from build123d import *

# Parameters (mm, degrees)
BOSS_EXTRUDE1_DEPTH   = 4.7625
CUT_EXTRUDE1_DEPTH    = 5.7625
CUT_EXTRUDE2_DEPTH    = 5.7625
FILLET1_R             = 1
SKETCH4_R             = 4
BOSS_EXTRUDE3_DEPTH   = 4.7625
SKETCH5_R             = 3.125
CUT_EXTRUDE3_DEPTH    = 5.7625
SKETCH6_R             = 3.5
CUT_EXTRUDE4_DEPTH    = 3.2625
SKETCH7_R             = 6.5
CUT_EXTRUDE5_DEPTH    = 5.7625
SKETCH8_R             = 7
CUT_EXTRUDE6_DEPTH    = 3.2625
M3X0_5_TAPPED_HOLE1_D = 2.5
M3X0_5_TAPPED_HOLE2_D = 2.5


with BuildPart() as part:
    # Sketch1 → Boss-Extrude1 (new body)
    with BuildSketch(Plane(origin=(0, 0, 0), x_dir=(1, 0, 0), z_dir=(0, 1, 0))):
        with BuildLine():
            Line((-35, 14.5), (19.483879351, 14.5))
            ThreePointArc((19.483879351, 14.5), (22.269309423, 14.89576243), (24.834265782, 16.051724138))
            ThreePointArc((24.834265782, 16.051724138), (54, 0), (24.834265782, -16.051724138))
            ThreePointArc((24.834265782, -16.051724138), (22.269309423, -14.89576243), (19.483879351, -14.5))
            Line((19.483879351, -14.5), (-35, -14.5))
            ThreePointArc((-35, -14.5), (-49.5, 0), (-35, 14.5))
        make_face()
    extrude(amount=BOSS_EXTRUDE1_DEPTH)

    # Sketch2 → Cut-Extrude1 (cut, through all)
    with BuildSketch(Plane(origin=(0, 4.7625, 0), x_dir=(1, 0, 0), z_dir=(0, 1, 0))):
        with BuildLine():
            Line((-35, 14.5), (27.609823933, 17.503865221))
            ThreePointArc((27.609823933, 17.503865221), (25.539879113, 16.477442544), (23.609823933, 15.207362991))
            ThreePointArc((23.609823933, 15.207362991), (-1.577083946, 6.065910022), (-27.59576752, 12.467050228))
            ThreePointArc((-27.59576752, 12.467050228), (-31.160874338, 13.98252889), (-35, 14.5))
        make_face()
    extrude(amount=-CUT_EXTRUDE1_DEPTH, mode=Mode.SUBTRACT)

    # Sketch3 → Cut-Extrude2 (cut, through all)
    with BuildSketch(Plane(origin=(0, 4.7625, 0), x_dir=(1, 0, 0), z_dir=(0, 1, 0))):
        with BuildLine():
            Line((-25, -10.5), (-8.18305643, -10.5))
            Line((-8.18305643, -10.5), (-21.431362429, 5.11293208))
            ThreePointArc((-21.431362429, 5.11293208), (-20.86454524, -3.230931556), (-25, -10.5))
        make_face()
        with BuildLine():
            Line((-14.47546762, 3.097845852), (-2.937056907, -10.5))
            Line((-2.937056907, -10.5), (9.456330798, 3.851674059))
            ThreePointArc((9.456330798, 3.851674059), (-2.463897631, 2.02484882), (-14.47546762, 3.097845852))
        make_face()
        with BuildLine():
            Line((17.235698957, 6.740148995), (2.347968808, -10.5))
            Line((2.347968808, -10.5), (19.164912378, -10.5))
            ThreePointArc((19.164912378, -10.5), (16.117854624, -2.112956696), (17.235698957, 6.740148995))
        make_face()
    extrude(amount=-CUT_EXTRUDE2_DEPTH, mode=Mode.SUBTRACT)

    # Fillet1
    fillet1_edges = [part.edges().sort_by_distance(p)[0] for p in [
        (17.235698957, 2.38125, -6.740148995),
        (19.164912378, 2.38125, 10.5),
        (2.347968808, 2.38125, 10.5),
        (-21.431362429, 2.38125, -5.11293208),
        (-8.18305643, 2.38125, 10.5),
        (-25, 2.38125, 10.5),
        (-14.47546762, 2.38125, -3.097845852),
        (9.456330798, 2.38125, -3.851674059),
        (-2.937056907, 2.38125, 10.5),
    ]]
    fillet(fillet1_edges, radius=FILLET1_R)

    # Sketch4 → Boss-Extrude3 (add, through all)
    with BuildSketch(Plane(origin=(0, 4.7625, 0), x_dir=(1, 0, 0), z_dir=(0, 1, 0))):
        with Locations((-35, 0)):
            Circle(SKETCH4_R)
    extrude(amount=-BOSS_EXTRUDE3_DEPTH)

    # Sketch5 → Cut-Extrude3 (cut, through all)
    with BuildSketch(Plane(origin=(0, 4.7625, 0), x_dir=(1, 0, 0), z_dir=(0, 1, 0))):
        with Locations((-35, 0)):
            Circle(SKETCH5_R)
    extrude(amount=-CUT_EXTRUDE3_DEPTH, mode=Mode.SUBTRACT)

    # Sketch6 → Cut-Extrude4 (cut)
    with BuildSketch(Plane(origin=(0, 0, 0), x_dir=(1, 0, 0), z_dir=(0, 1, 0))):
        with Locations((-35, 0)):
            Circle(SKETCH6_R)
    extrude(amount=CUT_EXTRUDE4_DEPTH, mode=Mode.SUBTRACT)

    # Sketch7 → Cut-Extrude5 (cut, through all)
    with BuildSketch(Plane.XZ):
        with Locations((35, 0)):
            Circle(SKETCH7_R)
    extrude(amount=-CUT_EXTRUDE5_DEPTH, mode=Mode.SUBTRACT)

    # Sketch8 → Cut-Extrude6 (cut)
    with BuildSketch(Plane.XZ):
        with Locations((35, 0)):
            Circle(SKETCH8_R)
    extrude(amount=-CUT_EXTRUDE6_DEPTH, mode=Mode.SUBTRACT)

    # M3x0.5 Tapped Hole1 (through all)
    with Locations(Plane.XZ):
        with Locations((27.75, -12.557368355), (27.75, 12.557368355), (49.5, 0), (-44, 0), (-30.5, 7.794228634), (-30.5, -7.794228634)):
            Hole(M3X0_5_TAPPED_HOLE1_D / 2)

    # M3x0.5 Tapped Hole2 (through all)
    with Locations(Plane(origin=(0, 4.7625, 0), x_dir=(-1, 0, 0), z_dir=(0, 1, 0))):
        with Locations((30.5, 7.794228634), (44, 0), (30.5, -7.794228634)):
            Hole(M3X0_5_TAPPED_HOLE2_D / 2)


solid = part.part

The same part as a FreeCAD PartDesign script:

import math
import FreeCAD as App
import Part
import Sketcher
from FreeCAD import Vector
Q = App.Units.Quantity


def edges_at(feature, points):
    """Names of the edges that pass closest to the given points."""
    edges = feature.Shape.Edges
    near = lambda p: min(range(len(edges)), key=lambda i: edges[i].distToShape(Part.Vertex(*p))[0])
    return sorted({f"Edge{near(p) + 1}" for p in points})

doc = App.newDocument("Part")
params = doc.addObject("Spreadsheet::Sheet", "Params")
for row, (alias, value) in enumerate([
    ("sketch1_radius", "10 mm"),
    ("sketch1_radius2", "19 mm"),
    ("sketch1_radius3", "14.5 mm"),
    ("pad1_length", "4.7625 mm"),
    ("sketch2_radius", "19 mm"),
    ("sketch2_radius2", "14.5 mm"),
    ("sketch3_radius", "19 mm"),
    ("sketch3_radius2", "14.5 mm"),
    ("fillet_radius", "1 mm"),
    ("sketch4_diameter", "8 mm"),
    ("sketch5_diameter", "6.25 mm"),
    ("sketch6_diameter", "7 mm"),
    ("pocket4_length", "3.2625 mm"),
    ("sketch7_diameter", "13 mm"),
    ("sketch8_diameter", "14 mm"),
    ("pocket6_length", "3.2625 mm"),
    ("sketch9_diameter", "2.5 mm"),
    ("hole_diameter", "2.5 mm"),
    ("sketch10_diameter", "2.5 mm"),
    ("hole2_diameter", "2.5 mm"),
], start=1):
    params.set(f"A{row}", alias)
    params.set(f"B{row}", "=" + value)
    params.setAlias(f"B{row}", alias)

body = doc.addObject("PartDesign::Body", "Body")

# Sketch on XZ plane
sketch1 = doc.addObject("Sketcher::SketchObject", "Sketch")
body.addObject(sketch1)
sketch1.AttachmentSupport = (doc.XZ_Plane, [""])
sketch1.MapMode = "FlatFace"
sketch1.addGeometry([
    Part.LineSegment(Vector(19, -14, 0), Vector(-35, -14, 0)),  # 0
    Part.ArcOfCircle(Part.Circle(Vector(-35, 0, 0), Vector(0, 0, 1), 14), math.radians(90), math.radians(270)),  # 1
    Part.LineSegment(Vector(-35, 14, 0), Vector(19, 14, 0)),  # 2
    Part.ArcOfCircle(Part.Circle(Vector(19, 25, 0), Vector(0, 0, 1), 10), math.radians(-90), math.radians(-58)),  # 3
    Part.ArcOfCircle(Part.Circle(Vector(35, 0, 0), Vector(0, 0, 1), 19), math.radians(-122), math.radians(122)),  # 4
    Part.ArcOfCircle(Part.Circle(Vector(19, -25, 0), Vector(0, 0, 1), 10), math.radians(58), math.radians(90)),  # 5
], False)
sketch1.addConstraint([
    Sketcher.Constraint("Tangent", 0, 2, 1, 2),
    Sketcher.Constraint("Tangent", 1, 1, 2, 1),
    Sketcher.Constraint("Tangent", 2, 2, 3, 1),
    Sketcher.Constraint("Tangent", 3, 2, 4, 2),
    Sketcher.Constraint("Tangent", 4, 1, 5, 1),
    Sketcher.Constraint("Tangent", 5, 2, 0, 1),
    Sketcher.Constraint("Horizontal", 0),
    Sketcher.Constraint("Horizontal", 2),
    Sketcher.Constraint("Equal", 3, 5),
    Sketcher.Constraint("Symmetric", 1, 3, 4, 3, -1, 1),
    Sketcher.Constraint("PointOnObject", 1, 3, -1),
    Sketcher.Constraint("Radius", 3, Q("10 mm")),
    Sketcher.Constraint("Radius", 4, Q("19 mm")),
    Sketcher.Constraint("Radius", 1, Q("14.5 mm")),
    Sketcher.Constraint("DistanceX", 1, 3, -1, 1, Q("35 mm")),
])
sketch1.setExpression("Constraints[11]", "Params.sketch1_radius")
sketch1.setExpression("Constraints[12]", "Params.sketch1_radius2")
sketch1.setExpression("Constraints[13]", "Params.sketch1_radius3")
pad1 = doc.addObject("PartDesign::Pad", "Pad")
body.addObject(pad1)
pad1.Profile = sketch1
pad1.setExpression("Length", "Params.pad1_length")
pad1.Reversed = True

# Sketch on XZ plane
sketch2 = doc.addObject("Sketcher::SketchObject", "Sketch001")
body.addObject(sketch2)
sketch2.AttachmentSupport = (doc.XZ_Plane, [""])
sketch2.MapMode = "FlatFace"
sketch2.AttachmentOffset = App.Placement(Vector(0, 0, -4.7625), App.Rotation())
sketch2.addGeometry([
    Part.LineSegment(Vector(27.6, -17.5, 0), Vector(-35, -14.5, 0)),
    Part.ArcOfCircle(Part.Circle(Vector(-35, 0, 0), Vector(0, 0, 1), 14.5), math.radians(-90), math.radians(-59)),
    Part.ArcOfCircle(Part.Circle(Vector(-4, -52.1, 0), Vector(0, 0, 1), 46.1), math.radians(53), math.radians(121)),
    Part.ArcOfCircle(Part.Circle(Vector(35, 0, 0), Vector(0, 0, 1), 19), math.radians(-126.83), math.radians(-112.89)),
], False)
sketch2.addConstraint([
    Sketcher.Constraint("Coincident", 0, 2, 1, 1),
    Sketcher.Constraint("Tangent", 1, 2, 2, 2),
    Sketcher.Constraint("Tangent", 2, 1, 3, 1),
    Sketcher.Constraint("Coincident", 3, 2, 0, 1),
    Sketcher.Constraint("Symmetric", 1, 3, 3, 3, -1, 1),
    Sketcher.Constraint("PointOnObject", 1, 3, -1),
    Sketcher.Constraint("Vertical", 1, 3, 0, 2),
    Sketcher.Constraint("Radius", 3, Q("19 mm")),
    Sketcher.Constraint("Radius", 1, Q("14.5 mm")),
    Sketcher.Constraint("DistanceX", 1, 3, -1, 1, Q("35 mm")),
    Sketcher.Constraint("DistanceX", 2, 1, 3, 2, Q("4 mm")),
    Sketcher.Constraint("Radius", 2, Q("46.12619 mm")),
])
sketch2.setExpression("Constraints[7]", "Params.sketch2_radius")
sketch2.setExpression("Constraints[8]", "Params.sketch2_radius2")
pocket1 = doc.addObject("PartDesign::Pocket", "Pocket")
body.addObject(pocket1)
pocket1.Profile = sketch2
pocket1.Type = "ThroughAll"
pocket1.Reversed = True

# Sketch on XZ plane
sketch3 = doc.addObject("Sketcher::SketchObject", "Sketch002")
body.addObject(sketch3)
sketch3.AttachmentSupport = (doc.XZ_Plane, [""])
sketch3.MapMode = "FlatFace"
sketch3.AttachmentOffset = App.Placement(Vector(0, 0, -4.7625), App.Rotation())
sketch3.addGeometry([
    Part.LineSegment(Vector(-25, 10, 0), Vector(-8, 10, 0)),  # 0
    Part.LineSegment(Vector(-8, 10, 0), Vector(-21, -5, 0)),  # 1
    Part.ArcOfCircle(Part.Circle(Vector(-35, 0, 0), Vector(0, 0, 1), 14), math.radians(-21), math.radians(46)),  # 2
    Part.LineSegment(Vector(-14, -3, 0), Vector(-3, 10, 0)),  # 3
    Part.LineSegment(Vector(-3, 10, 0), Vector(9, -4, 0)),  # 4
    Part.ArcOfCircle(Part.Circle(Vector(-4, -52, 0), Vector(0, 0, 1), 50), math.radians(74), math.radians(102)),  # 5
    Part.LineSegment(Vector(17, -7, 0), Vector(2, 10, 0)),  # 6
    Part.LineSegment(Vector(2, 10, 0), Vector(19, 10, 0)),  # 7
    Part.ArcOfCircle(Part.Circle(Vector(35, 0, 0), Vector(0, 0, 1), 19), math.radians(146), math.radians(201)),  # 8
], False)
sketch3.addConstraint([
    Sketcher.Constraint("Coincident", 0, 2, 1, 1),
    Sketcher.Constraint("Coincident", 1, 2, 2, 1),
    Sketcher.Constraint("Coincident", 2, 2, 0, 1),
    Sketcher.Constraint("Coincident", 3, 2, 4, 1),
    Sketcher.Constraint("Coincident", 4, 2, 5, 1),
    Sketcher.Constraint("Coincident", 5, 2, 3, 1),
    Sketcher.Constraint("Coincident", 6, 2, 7, 1),
    Sketcher.Constraint("Coincident", 7, 2, 8, 1),
    Sketcher.Constraint("Coincident", 8, 2, 6, 1),
    Sketcher.Constraint("Horizontal", 0),
    Sketcher.Constraint("Horizontal", 7),
    Sketcher.Constraint("Symmetric", 2, 3, 8, 3, -1, 1),
    Sketcher.Constraint("PointOnObject", 2, 3, -1),
    Sketcher.Constraint("Parallel", 1, 3),
    Sketcher.Constraint("Parallel", 4, 6),
    Sketcher.Constraint("Horizontal", 2, 2, 3, 2),
    Sketcher.Constraint("Horizontal", 3, 2, 6, 2),
    Sketcher.Constraint("Equal", 0, 7),
    Sketcher.Constraint("Radius", 8, Q("19 mm")),
    Sketcher.Constraint("Radius", 2, Q("14.5 mm")),
    Sketcher.Constraint("DistanceX", 2, 3, -1, 1, Q("35 mm")),
    Sketcher.Constraint("DistanceX", 2, 2, -1, 1, Q("25 mm")),
    Sketcher.Constraint("Radius", 5, Q("50.12619 mm")),
    Sketcher.Constraint("DistanceX", 0, 2, 3, 2, Q("5.246 mm")),
    Sketcher.Constraint("DistanceX", -1, 1, 8, 2, Q("17.235699 mm")),
    Sketcher.Constraint("Distance", 1, Q("20.476359 mm")),
    Sketcher.Constraint("Distance", 4, Q("18.962242 mm")),
    Sketcher.Constraint("DistanceX", 0, 1, 0, 2, Q("16.816944 mm")),
    Sketcher.Constraint("DistanceX", 5, 3, -1, 1, Q("4.042041 mm")),
])
sketch3.setExpression("Constraints[18]", "Params.sketch3_radius")
sketch3.setExpression("Constraints[19]", "Params.sketch3_radius2")
pocket2 = doc.addObject("PartDesign::Pocket", "Pocket001")
body.addObject(pocket2)
pocket2.Profile = sketch3
pocket2.Type = "ThroughAll"
pocket2.Reversed = True
doc.recompute()

fillet = doc.addObject("PartDesign::Fillet", "Fillet")
body.addObject(fillet)
fillet.Base = (pocket2, edges_at(pocket2, [
    (17.236, 2.381, -6.74),
    (19.165, 2.381, 10.5),
    (2.348, 2.381, 10.5),
    (-21.431, 2.381, -5.113),
    (-8.183, 2.381, 10.5),
    (-25, 2.381, 10.5),
    (-14.475, 2.381, -3.098),
    (9.456, 2.381, -3.852),
    (-2.937, 2.381, 10.5),
]))
fillet.setExpression("Radius", "Params.fillet_radius")

# Sketch on XZ plane
sketch4 = doc.addObject("Sketcher::SketchObject", "Sketch003")
body.addObject(sketch4)
sketch4.AttachmentSupport = (doc.XZ_Plane, [""])
sketch4.MapMode = "FlatFace"
sketch4.AttachmentOffset = App.Placement(Vector(0, 0, -4.7625), App.Rotation())
sketch4.addGeometry(Part.Circle(Vector(-35, 0, 0), Vector(0, 0, 1), 4), False)
sketch4.addConstraint([
    Sketcher.Constraint("PointOnObject", 0, 3, -1),
    Sketcher.Constraint("Diameter", 0, Q("8 mm")),
    Sketcher.Constraint("DistanceX", 0, 3, -1, 1, Q("35 mm")),
])
sketch4.setExpression("Constraints[1]", "Params.sketch4_diameter")
pad2 = doc.addObject("PartDesign::Pad", "Pad001")
body.addObject(pad2)
pad2.Profile = sketch4
pad2.Type = "UpToLast"

# Sketch on XZ plane
sketch5 = doc.addObject("Sketcher::SketchObject", "Sketch004")
body.addObject(sketch5)
sketch5.AttachmentSupport = (doc.XZ_Plane, [""])
sketch5.MapMode = "FlatFace"
sketch5.AttachmentOffset = App.Placement(Vector(0, 0, -4.7625), App.Rotation())
sketch5.addGeometry(Part.Circle(Vector(-35, 0, 0), Vector(0, 0, 1), 3.1), False)
sketch5.addConstraint([
    Sketcher.Constraint("PointOnObject", 0, 3, -1),
    Sketcher.Constraint("Diameter", 0, Q("6.25 mm")),
    Sketcher.Constraint("DistanceX", 0, 3, -1, 1, Q("35 mm")),
])
sketch5.setExpression("Constraints[1]", "Params.sketch5_diameter")
pocket3 = doc.addObject("PartDesign::Pocket", "Pocket002")
body.addObject(pocket3)
pocket3.Profile = sketch5
pocket3.Type = "ThroughAll"
pocket3.Reversed = True

# Sketch on XZ plane
sketch6 = doc.addObject("Sketcher::SketchObject", "Sketch005")
body.addObject(sketch6)
sketch6.AttachmentSupport = (doc.XZ_Plane, [""])
sketch6.MapMode = "FlatFace"
sketch6.addGeometry(Part.Circle(Vector(-35, 0, 0), Vector(0, 0, 1), 3.5), False)
sketch6.addConstraint([
    Sketcher.Constraint("PointOnObject", 0, 3, -1),
    Sketcher.Constraint("Diameter", 0, Q("7 mm")),
    Sketcher.Constraint("DistanceX", 0, 3, -1, 1, Q("35 mm")),
])
sketch6.setExpression("Constraints[1]", "Params.sketch6_diameter")
pocket4 = doc.addObject("PartDesign::Pocket", "Pocket003")
body.addObject(pocket4)
pocket4.Profile = sketch6
pocket4.setExpression("Length", "Params.pocket4_length")

# Sketch on XZ plane
sketch7 = doc.addObject("Sketcher::SketchObject", "Sketch006")
body.addObject(sketch7)
sketch7.AttachmentSupport = (doc.XZ_Plane, [""])
sketch7.MapMode = "FlatFace"
sketch7.addGeometry(Part.Circle(Vector(35, 0, 0), Vector(0, 0, 1), 6), False)
sketch7.addConstraint([
    Sketcher.Constraint("PointOnObject", 0, 3, -1),
    Sketcher.Constraint("Diameter", 0, Q("13 mm")),
    Sketcher.Constraint("DistanceX", -1, 1, 0, 3, Q("35 mm")),
])
sketch7.setExpression("Constraints[1]", "Params.sketch7_diameter")
pocket5 = doc.addObject("PartDesign::Pocket", "Pocket004")
body.addObject(pocket5)
pocket5.Profile = sketch7
pocket5.Type = "ThroughAll"

# Sketch on XZ plane
sketch8 = doc.addObject("Sketcher::SketchObject", "Sketch007")
body.addObject(sketch8)
sketch8.AttachmentSupport = (doc.XZ_Plane, [""])
sketch8.MapMode = "FlatFace"
sketch8.addGeometry(Part.Circle(Vector(35, 0, 0), Vector(0, 0, 1), 7), False)
sketch8.addConstraint([
    Sketcher.Constraint("PointOnObject", 0, 3, -1),
    Sketcher.Constraint("Diameter", 0, Q("14 mm")),
    Sketcher.Constraint("DistanceX", -1, 1, 0, 3, Q("35 mm")),
])
sketch8.setExpression("Constraints[1]", "Params.sketch8_diameter")
pocket6 = doc.addObject("PartDesign::Pocket", "Pocket005")
body.addObject(pocket6)
pocket6.Profile = sketch8
pocket6.setExpression("Length", "Params.pocket6_length")

# Sketch on XZ plane
sketch9 = doc.addObject("Sketcher::SketchObject", "Sketch008")
body.addObject(sketch9)
sketch9.AttachmentSupport = (doc.XZ_Plane, [""])
sketch9.MapMode = "FlatFace"
sketch9.addGeometry([
    Part.Circle(Vector(27.8, -12.6, 0), Vector(0, 0, 1), 1.2),  # 0
    Part.Circle(Vector(27.8, 12.6, 0), Vector(0, 0, 1), 1.2),  # 1
    Part.Circle(Vector(49.5, 0, 0), Vector(0, 0, 1), 1.2),  # 2
    Part.Circle(Vector(-44, 0, 0), Vector(0, 0, 1), 1.2),  # 3
    Part.Circle(Vector(-30.5, 7.8, 0), Vector(0, 0, 1), 1.2),  # 4
    Part.Circle(Vector(-30.5, -7.8, 0), Vector(0, 0, 1), 1.2),  # 5
], False)
sketch9.addConstraint([
    Sketcher.Constraint("Equal", 0, 1),
    Sketcher.Constraint("Equal", 1, 2),
    Sketcher.Constraint("Equal", 2, 3),
    Sketcher.Constraint("Equal", 3, 4),
    Sketcher.Constraint("Equal", 4, 5),
    Sketcher.Constraint("Symmetric", 0, 3, 1, 3, -1),
    Sketcher.Constraint("Symmetric", 4, 3, 5, 3, -1),
    Sketcher.Constraint("PointOnObject", 2, 3, -1),
    Sketcher.Constraint("PointOnObject", 3, 3, -1),
    Sketcher.Constraint("Diameter", 0, Q("2.5 mm")),
    Sketcher.Constraint("DistanceX", 3, 3, -1, 1, Q("44 mm")),
    Sketcher.Constraint("DistanceX", 4, 3, 2, 3, Q("80 mm")),
    Sketcher.Constraint("DistanceX", -1, 1, 2, 3, Q("49.5 mm")),
    Sketcher.Constraint("DistanceX", -1, 1, 0, 3, Q("27.75 mm")),
    Sketcher.Constraint("DistanceY", 0, 3, -1, 1, Q("12.557368 mm")),
    Sketcher.Constraint("DistanceY", -1, 1, 4, 3, Q("7.794229 mm")),
])
sketch9.setExpression("Constraints[9]", "Params.sketch9_diameter")
doc.recompute()
hole = doc.addObject("PartDesign::Hole", "Hole")
body.addObject(hole)
hole.Profile = sketch9
hole.ThreadType = "None"
hole.setExpression("Diameter", "Params.hole_diameter")
hole.DepthType = "ThroughAll"

# Sketch on XZ plane
sketch10 = doc.addObject("Sketcher::SketchObject", "Sketch009")
body.addObject(sketch10)
sketch10.AttachmentSupport = (doc.XZ_Plane, [""])
sketch10.MapMode = "FlatFace"
sketch10.AttachmentOffset = App.Placement(Vector(0, 0, -4.7625), App.Rotation())
sketch10.addGeometry([
    Part.Circle(Vector(-30.5, 7.8, 0), Vector(0, 0, 1), 1.2),
    Part.Circle(Vector(-44, 0, 0), Vector(0, 0, 1), 1.2),
    Part.Circle(Vector(-30.5, -7.8, 0), Vector(0, 0, 1), 1.2),
], False)
sketch10.addConstraint([
    Sketcher.Constraint("Equal", 0, 1),
    Sketcher.Constraint("Equal", 1, 2),
    Sketcher.Constraint("Symmetric", 0, 3, 2, 3, -1),
    Sketcher.Constraint("PointOnObject", 1, 3, -1),
    Sketcher.Constraint("Diameter", 0, Q("2.5 mm")),
    Sketcher.Constraint("DistanceX", 1, 3, -1, 1, Q("44 mm")),
    Sketcher.Constraint("DistanceX", 0, 3, -1, 1, Q("30.5 mm")),
    Sketcher.Constraint("DistanceY", -1, 1, 0, 3, Q("7.794229 mm")),
])
sketch10.setExpression("Constraints[4]", "Params.sketch10_diameter")
doc.recompute()
hole2 = doc.addObject("PartDesign::Hole", "Hole001")
body.addObject(hole2)
hole2.Profile = sketch10
hole2.ThreadType = "None"
hole2.setExpression("Diameter", "Params.hole2_diameter")
hole2.DepthType = "ThroughAll"
hole2.Reversed = True

doc.recompute()
